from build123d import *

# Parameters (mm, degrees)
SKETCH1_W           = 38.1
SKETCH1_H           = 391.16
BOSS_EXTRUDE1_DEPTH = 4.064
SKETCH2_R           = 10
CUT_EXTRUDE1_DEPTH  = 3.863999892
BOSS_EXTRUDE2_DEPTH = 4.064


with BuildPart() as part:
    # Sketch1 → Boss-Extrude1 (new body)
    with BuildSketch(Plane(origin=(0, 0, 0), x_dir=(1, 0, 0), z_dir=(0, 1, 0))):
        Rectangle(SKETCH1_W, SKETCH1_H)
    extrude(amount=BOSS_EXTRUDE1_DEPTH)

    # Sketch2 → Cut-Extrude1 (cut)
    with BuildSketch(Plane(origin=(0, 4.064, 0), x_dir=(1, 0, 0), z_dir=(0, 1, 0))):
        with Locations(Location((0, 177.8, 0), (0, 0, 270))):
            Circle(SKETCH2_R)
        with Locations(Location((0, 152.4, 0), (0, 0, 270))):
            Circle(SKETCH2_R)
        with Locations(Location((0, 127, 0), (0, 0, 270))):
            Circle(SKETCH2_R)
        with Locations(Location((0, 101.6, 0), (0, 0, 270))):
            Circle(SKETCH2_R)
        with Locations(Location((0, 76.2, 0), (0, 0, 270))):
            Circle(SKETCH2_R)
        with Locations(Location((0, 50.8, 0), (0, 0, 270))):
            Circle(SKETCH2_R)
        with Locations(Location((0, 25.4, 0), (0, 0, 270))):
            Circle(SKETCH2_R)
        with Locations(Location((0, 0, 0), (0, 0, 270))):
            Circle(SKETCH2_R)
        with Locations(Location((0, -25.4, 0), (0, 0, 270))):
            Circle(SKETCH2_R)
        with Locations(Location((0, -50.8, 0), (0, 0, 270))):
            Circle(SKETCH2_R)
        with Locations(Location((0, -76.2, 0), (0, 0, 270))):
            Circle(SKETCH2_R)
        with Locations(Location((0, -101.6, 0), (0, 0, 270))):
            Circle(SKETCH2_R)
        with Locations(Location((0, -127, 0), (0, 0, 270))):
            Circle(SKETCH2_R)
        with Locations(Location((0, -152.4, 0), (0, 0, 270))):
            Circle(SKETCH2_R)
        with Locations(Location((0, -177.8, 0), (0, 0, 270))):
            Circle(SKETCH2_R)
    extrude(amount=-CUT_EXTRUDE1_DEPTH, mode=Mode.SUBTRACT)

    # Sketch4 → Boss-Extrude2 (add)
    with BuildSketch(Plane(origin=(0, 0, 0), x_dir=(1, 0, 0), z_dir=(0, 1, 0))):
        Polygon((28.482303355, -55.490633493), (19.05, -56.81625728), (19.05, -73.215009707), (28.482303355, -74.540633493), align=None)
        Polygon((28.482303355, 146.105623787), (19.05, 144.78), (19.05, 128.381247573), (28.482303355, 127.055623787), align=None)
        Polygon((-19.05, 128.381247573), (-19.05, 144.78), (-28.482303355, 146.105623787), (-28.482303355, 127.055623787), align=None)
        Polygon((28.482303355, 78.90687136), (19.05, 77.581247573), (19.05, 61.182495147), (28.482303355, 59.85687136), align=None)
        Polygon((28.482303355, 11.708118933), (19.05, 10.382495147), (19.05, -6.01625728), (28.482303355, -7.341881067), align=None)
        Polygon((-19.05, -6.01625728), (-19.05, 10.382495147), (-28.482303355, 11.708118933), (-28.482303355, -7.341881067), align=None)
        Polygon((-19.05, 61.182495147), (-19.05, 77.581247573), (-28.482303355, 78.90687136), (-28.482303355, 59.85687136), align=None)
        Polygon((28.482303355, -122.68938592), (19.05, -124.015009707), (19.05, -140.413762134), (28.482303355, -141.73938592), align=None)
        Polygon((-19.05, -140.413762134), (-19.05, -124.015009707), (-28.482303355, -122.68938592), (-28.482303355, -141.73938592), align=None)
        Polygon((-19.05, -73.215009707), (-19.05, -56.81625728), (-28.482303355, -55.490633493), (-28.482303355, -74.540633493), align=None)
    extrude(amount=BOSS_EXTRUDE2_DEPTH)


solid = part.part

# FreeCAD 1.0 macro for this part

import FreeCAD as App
import Part
import Sketcher

V = App.Vector
Q = App.Units.Quantity

doc = App.newDocument("Part")
body = doc.addObject("PartDesign::Body", "Body")

# Sketch on XZ plane
sketch1 = body.newObject("Sketcher::SketchObject", "Sketch")
sketch1.AttachmentSupport = (doc.getObject("XZ_Plane"), [""])
sketch1.MapMode = "FlatFace"
sketch1.addGeometry([
    Part.LineSegment(V(-19, -196, 0), V(-19, 196, 0)),
    Part.LineSegment(V(-19, 196, 0), V(19, 196, 0)),
    Part.LineSegment(V(19, 196, 0), V(19, -196, 0)),
    Part.LineSegment(V(19, -196, 0), V(-19, -196, 0)),
], False)
sketch1.addConstraint([
    Sketcher.Constraint("Coincident", 0, 2, 1, 1),
    Sketcher.Constraint("Coincident", 1, 2, 2, 1),
    Sketcher.Constraint("Coincident", 2, 2, 3, 1),
    Sketcher.Constraint("Coincident", 3, 2, 0, 1),
    Sketcher.Constraint("Vertical", 0),
    Sketcher.Constraint("Horizontal", 1),
    Sketcher.Constraint("Vertical", 2),
    Sketcher.Constraint("Horizontal", 3),
    Sketcher.Constraint("Symmetric", 0, 2, 2, 2, -1, 1),
    Sketcher.Constraint("DistanceX", 1, 1, 1, 2, Q("1.5 in")),
    Sketcher.Constraint("DistanceY", 0, 1, 0, 2, Q("15.4 in")),
])
pad1 = body.newObject("PartDesign::Pad", "Pad")
pad1.Profile = sketch1
pad1.Length = Q("0.16 in")
pad1.Reversed = True

# Sketch on XZ plane
sketch2 = body.newObject("Sketcher::SketchObject", "Sketch001")
sketch2.AttachmentSupport = (doc.getObject("XZ_Plane"), [""])
sketch2.MapMode = "FlatFace"
sketch2.AttachmentOffset = App.Placement(V(0, 0, -0.16 * 25.4), App.Rotation())
sketch2.addGeometry([
    Part.Circle(V(0, -178, 0), V(0, 0, 1), 10),  # 0
    Part.Circle(V(0, -152, 0), V(0, 0, 1), 10),  # 1
    Part.Circle(V(0, -127, 0), V(0, 0, 1), 10),  # 2
    Part.Circle(V(0, -102, 0), V(0, 0, 1), 10),  # 3
    Part.Circle(V(0, -76, 0), V(0, 0, 1), 10),  # 4
    Part.Circle(V(0, -51, 0), V(0, 0, 1), 10),  # 5
    Part.Circle(V(0, -25, 0), V(0, 0, 1), 10),  # 6
    Part.Circle(V(0, 0, 0), V(0, 0, 1), 10),  # 7
    Part.Circle(V(0, 25, 0), V(0, 0, 1), 10),  # 8
    Part.Circle(V(0, 51, 0), V(0, 0, 1), 10),  # 9
    Part.Circle(V(0, 76, 0), V(0, 0, 1), 10),  # 10
    Part.Circle(V(0, 102, 0), V(0, 0, 1), 10),  # 11
    Part.Circle(V(0, 127, 0), V(0, 0, 1), 10),  # 12
    Part.Circle(V(0, 152, 0), V(0, 0, 1), 10),  # 13
    Part.Circle(V(0, 178, 0), V(0, 0, 1), 10),  # 14
], False)
sketch2.addConstraint([
    Sketcher.Constraint("Coincident", 7, 3, -1, 1),
    Sketcher.Constraint("Equal", 0, 1),
    Sketcher.Constraint("Equal", 1, 2),
    Sketcher.Constraint("Equal", 2, 3),
    Sketcher.Constraint("Equal", 3, 4),
    Sketcher.Constraint("Equal", 4, 5),
    Sketcher.Constraint("Equal", 5, 6),
    Sketcher.Constraint("Equal", 6, 7),
    Sketcher.Constraint("Equal", 7, 8),
    Sketcher.Constraint("Equal", 8, 9),
    Sketcher.Constraint("Equal", 9, 10),
    Sketcher.Constraint("Equal", 10, 11),
    Sketcher.Constraint("Equal", 11, 12),
    Sketcher.Constraint("Equal", 12, 13),
    Sketcher.Constraint("Equal", 13, 14),
    Sketcher.Constraint("Symmetric", 6, 3, 8, 3, -1, 1),
    Sketcher.Constraint("Symmetric", 5, 3, 9, 3, -1, 1),
    Sketcher.Constraint("Symmetric", 4, 3, 10, 3, -1, 1),
    Sketcher.Constraint("Symmetric", 3, 3, 11, 3, -1, 1),
    Sketcher.Constraint("Symmetric", 2, 3, 12, 3, -1, 1),
    Sketcher.Constraint("Symmetric", 1, 3, 13, 3, -1, 1),
    Sketcher.Constraint("Symmetric", 0, 3, 14, 3, -1, 1),
    Sketcher.Constraint("PointOnObject", 0, 3, -2),
    Sketcher.Constraint("PointOnObject", 1, 3, -2),
    Sketcher.Constraint("PointOnObject", 2, 3, -2),
    Sketcher.Constraint("PointOnObject", 3, 3, -2),
    Sketcher.Constraint("PointOnObject", 4, 3, -2),
    Sketcher.Constraint("PointOnObject", 5, 3, -2),
    Sketcher.Constraint("PointOnObject", 6, 3, -2),
    Sketcher.Constraint("DistanceY", 0, 3, -1, 1, Q("7 in")),
    Sketcher.Constraint("DistanceY", 1, 3, -1, 1, Q("6 in")),
    Sketcher.Constraint("DistanceY", 2, 3, -1, 1, Q("5 in")),
    Sketcher.Constraint("DistanceY", 3, 3, -1, 1, Q("4 in")),
    Sketcher.Constraint("DistanceY", 4, 3, -1, 1, Q("3 in")),
    Sketcher.Constraint("DistanceY", 5, 3, -1, 1, Q("2 in")),
    Sketcher.Constraint("DistanceY", 6, 3, -1, 1, Q("1 in")),
    Sketcher.Constraint("Diameter", 0, Q("20 mm")),
])
pocket1 = body.newObject("PartDesign::Pocket", "Pocket")
pocket1.Profile = sketch2
pocket1.Length = 3.864
pocket1.Reversed = True

# Sketch on XZ plane
sketch3 = body.newObject("Sketcher::SketchObject", "Sketch002")
sketch3.AttachmentSupport = (doc.getObject("XZ_Plane"), [""])
sketch3.MapMode = "FlatFace"
sketch3.addGeometry([
    Part.LineSegment(V(28, 55, 0), V(19, 57, 0)),  # 0
    Part.LineSegment(V(19, 57, 0), V(19, 73, 0)),  # 1
    Part.LineSegment(V(19, 73, 0), V(28, 75, 0)),  # 2
    Part.LineSegment(V(28, 75, 0), V(28, 55, 0)),  # 3
    Part.LineSegment(V(28, -146, 0), V(19, -145, 0)),  # 4
    Part.LineSegment(V(19, -145, 0), V(19, -128, 0)),  # 5
    Part.LineSegment(V(19, -128, 0), V(28, -127, 0)),  # 6
    Part.LineSegment(V(28, -127, 0), V(28, -146, 0)),  # 7
    Part.LineSegment(V(-19, -128, 0), V(-19, -145, 0)),  # 8
    Part.LineSegment(V(-19, -145, 0), V(-28, -146, 0)),  # 9
    Part.LineSegment(V(-28, -146, 0), V(-28, -127, 0)),  # 10
    Part.LineSegment(V(-28, -127, 0), V(-19, -128, 0)),  # 11
    Part.LineSegment(V(28, -79, 0), V(19, -78, 0)),  # 12
    Part.LineSegment(V(19, -78, 0), V(19, -61, 0)),  # 13
    Part.LineSegment(V(19, -61, 0), V(28, -60, 0)),  # 14
    Part.LineSegment(V(28, -60, 0), V(28, -79, 0)),  # 15
    Part.LineSegment(V(28, -12, 0), V(19, -10, 0)),  # 16
    Part.LineSegment(V(19, -10, 0), V(19, 6, 0)),  # 17
    Part.LineSegment(V(19, 6, 0), V(28, 7, 0)),  # 18
    Part.LineSegment(V(28, 7, 0), V(28, -12, 0)),  # 19
    Part.LineSegment(V(-19, 6, 0), V(-19, -10, 0)),  # 20
    Part.LineSegment(V(-19, -10, 0), V(-28, -12, 0)),  # 21
    Part.LineSegment(V(-28, -12, 0), V(-28, 7, 0)),  # 22
    Part.LineSegment(V(-28, 7, 0), V(-19, 6, 0)),  # 23
    Part.LineSegment(V(-19, -61, 0), V(-19, -78, 0)),  # 24
    Part.LineSegment(V(-19, -78, 0), V(-28, -79, 0)),  # 25
    Part.LineSegment(V(-28, -79, 0), V(-28, -60, 0)),  # 26
    Part.LineSegment(V(-28, -60, 0), V(-19, -61, 0)),  # 27
    Part.LineSegment(V(28, 123, 0), V(19, 124, 0)),  # 28
    Part.LineSegment(V(19, 124, 0), V(19, 140, 0)),  # 29
    Part.LineSegment(V(19, 140, 0), V(28, 142, 0)),  # 30
    Part.LineSegment(V(28, 142, 0), V(28, 123, 0)),  # 31
    Part.LineSegment(V(-19, 140, 0), V(-19, 124, 0)),  # 32
    Part.LineSegment(V(-19, 124, 0), V(-28, 123, 0)),  # 33
    Part.LineSegment(V(-28, 123, 0), V(-28, 142, 0)),  # 34
    Part.LineSegment(V(-28, 142, 0), V(-19, 140, 0)),  # 35
    Part.LineSegment(V(-19, 73, 0), V(-19, 57, 0)),  # 36
    Part.LineSegment(V(-19, 57, 0), V(-28, 55, 0)),  # 37
    Part.LineSegment(V(-28, 55, 0), V(-28, 75, 0)),  # 38
    Part.LineSegment(V(-28, 75, 0), V(-19, 73, 0)),  # 39
], False)
sketch3.addConstraint([
    Sketcher.Constraint("Coincident", 0, 2, 1, 1),
    Sketcher.Constraint("Coincident", 1, 2, 2, 1),
    Sketcher.Constraint("Coincident", 2, 2, 3, 1),
    Sketcher.Constraint("Coincident", 3, 2, 0, 1),
    Sketcher.Constraint("Coincident", 4, 2, 5, 1),
    Sketcher.Constraint("Coincident", 5, 2, 6, 1),
    Sketcher.Constraint("Coincident", 6, 2, 7, 1),
    Sketcher.Constraint("Coincident", 7, 2, 4, 1),
    Sketcher.Constraint("Coincident", 8, 2, 9, 1),
    Sketcher.Constraint("Coincident", 9, 2, 10, 1),
    Sketcher.Constraint("Coincident", 10, 2, 11, 1),
    Sketcher.Constraint("Coincident", 11, 2, 8, 1),
    Sketcher.Constraint("Coincident", 12, 2, 13, 1),
    Sketcher.Constraint("Coincident", 13, 2, 14, 1),
    Sketcher.Constraint("Coincident", 14, 2, 15, 1),
    Sketcher.Constraint("Coincident", 15, 2, 12, 1),
    Sketcher.Constraint("Coincident", 16, 2, 17, 1),
    Sketcher.Constraint("Coincident", 17, 2, 18, 1),
    Sketcher.Constraint("Coincident", 18, 2, 19, 1),
    Sketcher.Constraint("Coincident", 19, 2, 16, 1),
    Sketcher.Constraint("Coincident", 20, 2, 21, 1),
    Sketcher.Constraint("Coincident", 21, 2, 22, 1),
    Sketcher.Constraint("Coincident", 22, 2, 23, 1),
    Sketcher.Constraint("Coincident", 23, 2, 20, 1),
    Sketcher.Constraint("Coincident", 24, 2, 25, 1),
    Sketcher.Constraint("Coincident", 25, 2, 26, 1),
    Sketcher.Constraint("Coincident", 26, 2, 27, 1),
    Sketcher.Constraint("Coincident", 27, 2, 24, 1),
    Sketcher.Constraint("Coincident", 28, 2, 29, 1),
    Sketcher.Constraint("Coincident", 29, 2, 30, 1),
    Sketcher.Constraint("Coincident", 30, 2, 31, 1),
    Sketcher.Constraint("Coincident", 31, 2, 28, 1),
    Sketcher.Constraint("Coincident", 32, 2, 33, 1),
    Sketcher.Constraint("Coincident", 33, 2, 34, 1),
    Sketcher.Constraint("Coincident", 34, 2, 35, 1),
    Sketcher.Constraint("Coincident", 35, 2, 32, 1),
    Sketcher.Constraint("Coincident", 36, 2, 37, 1),
    Sketcher.Constraint("Coincident", 37, 2, 38, 1),
    Sketcher.Constraint("Coincident", 38, 2, 39, 1),
    Sketcher.Constraint("Coincident", 39, 2, 36, 1),
    Sketcher.Constraint("Vertical", 1),
    Sketcher.Constraint("Vertical", 3),
    Sketcher.Constraint("Vertical", 5),
    Sketcher.Constraint("Vertical", 7),
    Sketcher.Constraint("Vertical", 8),
    Sketcher.Constraint("Vertical", 10),
    Sketcher.Constraint("Vertical", 13),
    Sketcher.Constraint("Vertical", 15),
    Sketcher.Constraint("Vertical", 17),
    Sketcher.Constraint("Vertical", 19),
    Sketcher.Constraint("Vertical", 20),
    Sketcher.Constraint("Vertical", 22),
    Sketcher.Constraint("Vertical", 24),
    Sketcher.Constraint("Vertical", 26),
    Sketcher.Constraint("Vertical", 29),
    Sketcher.Constraint("Vertical", 31),
    Sketcher.Constraint("Vertical", 32),
    Sketcher.Constraint("Vertical", 34),
    Sketcher.Constraint("Vertical", 36),
    Sketcher.Constraint("Vertical", 38),
    Sketcher.Constraint("Symmetric", 4, 2, 8, 2, -2),
    Sketcher.Constraint("Symmetric", 7, 2, 9, 2, -2),
    Sketcher.Constraint("Symmetric", 16, 2, 20, 2, -2),
    Sketcher.Constraint("Symmetric", 19, 2, 21, 2, -2),
    Sketcher.Constraint("Symmetric", 12, 2, 24, 2, -2),
    Sketcher.Constraint("Symmetric", 15, 2, 25, 2, -2),
    Sketcher.Constraint("Symmetric", 28, 2, 32, 2, -2),
    Sketcher.Constraint("Symmetric", 31, 2, 33, 2, -2),
    Sketcher.Constraint("Symmetric", 0, 2, 36, 2, -2),
    Sketcher.Constraint("Symmetric", 3, 2, 37, 2, -2),
    Sketcher.Constraint("Parallel", 0, 4),
    Sketcher.Constraint("Parallel", 2, 6),
    Sketcher.Constraint("Parallel", 6, 9),
    Sketcher.Constraint("Parallel", 4, 11),
    Sketcher.Constraint("Parallel", 11, 12),
    Sketcher.Constraint("Parallel", 9, 14),
    Sketcher.Constraint("Parallel", 12, 16),
    Sketcher.Constraint("Parallel", 14, 18),
    Sketcher.Constraint("Parallel", 16, 23),
    Sketcher.Constraint("Parallel", 23, 27),
    Sketcher.Constraint("Parallel", 27, 28),
    Sketcher.Constraint("Parallel", 25, 30),
    Sketcher.Constraint("Parallel", 28, 35),
    Sketcher.Constraint("Parallel", 35, 39),
    Sketcher.Constraint("Horizontal", 6, 2, 10, 2),
    Sketcher.Constraint("Horizontal", 18, 2, 22, 2),
    Sketcher.Constraint("Horizontal", 14, 2, 26, 2),
    Sketcher.Constraint("Horizontal", 30, 2, 34, 2),
    Sketcher.Constraint("Horizontal", 2, 2, 38, 2),
    Sketcher.Constraint("Vertical", 1, 2, 4, 2),
    Sketcher.Constraint("Vertical", 3, 2, 6, 2),
    Sketcher.Constraint("Vertical", 5, 2, 12, 2),
    Sketcher.Constraint("Vertical", 7, 2, 14, 2),
    Sketcher.Constraint("Vertical", 13, 2, 16, 2),
    Sketcher.Constraint("Vertical", 15, 2, 18, 2),
    Sketcher.Constraint("Vertical", 17, 2, 28, 2),
    Sketcher.Constraint("Vertical", 19, 2, 30, 2),
    Sketcher.Constraint("Equal", 1, 5),
    Sketcher.Constraint("Equal", 8, 13),
    Sketcher.Constraint("Equal", 13, 17),
    Sketcher.Constraint("Equal", 24, 29),
    Sketcher.Constraint("Angle", 0, Q("172 deg")),
    Sketcher.Constraint("DistanceY", 5, 2, 12, 2, Q("2 in")),
    Sketcher.Constraint("DistanceY", 13, 2, 16, 2, Q("2 in")),
    Sketcher.Constraint("DistanceY", 17, 2, 0, 2, Q("2 in")),
    Sketcher.Constraint("DistanceY", 1, 2, 28, 2, Q("2 in")),
    Sketcher.Constraint("DistanceY", 3, 2, 3, 1, Q("0.75 in")),
    Sketcher.Constraint("DistanceY", 4, 2, -1, 1, Q("5.7 in")),
    Sketcher.Constraint("DistanceX", 8, 2, 4, 2, Q("1.5 in")),
    Sketcher.Constraint("Distance", 0, Q("0.375 in")),
])
pad2 = body.newObject("PartDesign::Pad", "Pad001")
pad2.Profile = sketch3
pad2.Length = Q("0.16 in")
pad2.Reversed = True

doc.recompute()
